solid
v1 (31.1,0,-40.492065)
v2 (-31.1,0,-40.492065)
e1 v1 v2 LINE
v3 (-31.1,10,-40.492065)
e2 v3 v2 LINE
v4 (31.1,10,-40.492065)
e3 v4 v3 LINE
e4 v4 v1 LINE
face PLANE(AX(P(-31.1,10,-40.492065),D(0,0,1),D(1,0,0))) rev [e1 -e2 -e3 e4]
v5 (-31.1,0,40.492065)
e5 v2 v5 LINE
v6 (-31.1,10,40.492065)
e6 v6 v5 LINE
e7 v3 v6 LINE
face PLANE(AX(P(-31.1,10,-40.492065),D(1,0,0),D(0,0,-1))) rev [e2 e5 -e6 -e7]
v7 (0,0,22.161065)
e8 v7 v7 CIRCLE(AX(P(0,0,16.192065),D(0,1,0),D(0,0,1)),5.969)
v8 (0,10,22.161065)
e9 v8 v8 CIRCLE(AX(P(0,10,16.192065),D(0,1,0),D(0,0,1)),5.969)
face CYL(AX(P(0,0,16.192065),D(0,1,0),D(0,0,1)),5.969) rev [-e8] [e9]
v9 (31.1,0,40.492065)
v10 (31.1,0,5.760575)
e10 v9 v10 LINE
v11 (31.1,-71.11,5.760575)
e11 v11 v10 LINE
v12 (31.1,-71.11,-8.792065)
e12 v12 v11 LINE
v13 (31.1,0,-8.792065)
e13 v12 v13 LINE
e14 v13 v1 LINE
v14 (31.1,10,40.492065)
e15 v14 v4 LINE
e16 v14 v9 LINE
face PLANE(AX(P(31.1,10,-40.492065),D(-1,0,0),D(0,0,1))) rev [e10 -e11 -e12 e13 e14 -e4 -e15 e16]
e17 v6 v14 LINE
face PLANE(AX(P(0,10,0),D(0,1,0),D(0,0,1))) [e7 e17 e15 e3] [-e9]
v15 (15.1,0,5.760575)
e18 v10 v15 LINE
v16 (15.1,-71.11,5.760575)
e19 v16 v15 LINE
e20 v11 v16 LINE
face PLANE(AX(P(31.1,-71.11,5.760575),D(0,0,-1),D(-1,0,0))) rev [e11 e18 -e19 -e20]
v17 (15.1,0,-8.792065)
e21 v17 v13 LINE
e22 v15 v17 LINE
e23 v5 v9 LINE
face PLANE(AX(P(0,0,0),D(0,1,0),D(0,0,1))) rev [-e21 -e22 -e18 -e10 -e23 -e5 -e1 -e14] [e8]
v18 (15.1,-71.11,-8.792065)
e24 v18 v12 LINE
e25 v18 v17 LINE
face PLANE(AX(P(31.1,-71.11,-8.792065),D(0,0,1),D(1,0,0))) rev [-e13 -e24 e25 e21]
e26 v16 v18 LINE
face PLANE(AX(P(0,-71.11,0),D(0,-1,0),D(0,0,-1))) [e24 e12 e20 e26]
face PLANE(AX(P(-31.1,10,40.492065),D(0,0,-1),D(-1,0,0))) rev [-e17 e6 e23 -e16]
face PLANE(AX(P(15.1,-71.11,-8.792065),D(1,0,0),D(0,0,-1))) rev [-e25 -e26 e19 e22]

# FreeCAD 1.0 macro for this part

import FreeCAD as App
import Part
import Sketcher
from FreeCAD import Vector
Q = App.Units.Quantity


def add_polygon(sketch, points):
    """Adds a closed chain of lines whose ends are joined by coincident constraints."""
    first, n = sketch.GeometryCount, len(points)
    for a, b in zip(points, points[1:] + points[:1]):
        sketch.addGeometry(Part.LineSegment(App.Vector(*a, 0), App.Vector(*b, 0)), False)
    for i in range(n):
        sketch.addConstraint(Sketcher.Constraint("Coincident", first + i, 2, first + (i + 1) % n, 1))

doc = App.newDocument("Part")
body = doc.addObject("PartDesign::Body", "Body")

sketch1 = doc.addObject("Sketcher::SketchObject", "Sketch")
body.addObject(sketch1)
sketch1.AttachmentSupport = (doc.XZ_Plane, [""])
sketch1.MapMode = "FlatFace"
add_polygon(sketch1, [(-31, -40), (-31, 40), (31, 40), (31, -40)])
sketch1.addConstraint([
    Sketcher.Constraint("Vertical", 0),
    Sketcher.Constraint("Horizontal", 1),
    Sketcher.Constraint("Vertical", 2),
    Sketcher.Constraint("Horizontal", 3),
    Sketcher.Constraint("Symmetric", 0, 2, 2, 2, -1, 1),
    Sketcher.Constraint("DistanceX", 1, 1, 1, 2, Q("62.2 mm")),
    Sketcher.Constraint("DistanceY", 0, 1, 0, 2, Q("80.98413 mm")),
])
pad1 = doc.addObject("PartDesign::Pad", "Pad")
body.addObject(pad1)
pad1.Profile = sketch1
pad1.Length = 10
pad1.Reversed = True

sketch2 = doc.addObject("Sketcher::SketchObject", "Sketch001")
body.addObject(sketch2)
sketch2.AttachmentSupport = (doc.XZ_Plane, [""])
sketch2.MapMode = "FlatFace"
sketch2.AttachmentOffset = App.Placement(Vector(0, 0, -10), App.Rotation())
sketch2.addGeometry(Part.Circle(Vector(0, 16, 0), Vector(0, 0, 1), 6), False)
sketch2.addConstraint([
    Sketcher.Constraint("PointOnObject", 0, 3, -2),
    Sketcher.Constraint("Diameter", 0, Q("11.938 mm")),
    Sketcher.Constraint("DistanceY", -1, 1, 0, 3, Q("16.192065 mm")),
])
pocket1 = doc.addObject("PartDesign::Pocket", "Pocket")
body.addObject(pocket1)
pocket1.Profile = sketch2
pocket1.Length = 10
pocket1.Reversed = True

sketch3 = doc.addObject("Sketcher::SketchObject", "Sketch002")
body.addObject(sketch3)
sketch3.AttachmentSupport = (doc.XZ_Plane, [""])
sketch3.MapMode = "FlatFace"
add_polygon(sketch3, [(15, 6), (15, -9), (31, -9), (31, 6)])
sketch3.addConstraint([
    Sketcher.Constraint("Vertical", 0),
    Sketcher.Constraint("Horizontal", 1),
    Sketcher.Constraint("Vertical", 2),
    Sketcher.Constraint("Horizontal", 3),
    Sketcher.Constraint("DistanceX", 1, 1, 1, 2, Q("16 mm")),
    Sketcher.Constraint("DistanceX", -1, 1, 0, 2, Q("15.1 mm")),
    Sketcher.Constraint("DistanceY", 0, 2, 0, 1, Q("14.55264 mm")),
    Sketcher.Constraint("DistanceY", 0, 2, -1, 1, Q("8.792065 mm")),
])
pad2 = doc.addObject("PartDesign::Pad", "Pad001")
body.addObject(pad2)
pad2.Profile = sketch3
pad2.Length = 71.11

doc.recompute()
